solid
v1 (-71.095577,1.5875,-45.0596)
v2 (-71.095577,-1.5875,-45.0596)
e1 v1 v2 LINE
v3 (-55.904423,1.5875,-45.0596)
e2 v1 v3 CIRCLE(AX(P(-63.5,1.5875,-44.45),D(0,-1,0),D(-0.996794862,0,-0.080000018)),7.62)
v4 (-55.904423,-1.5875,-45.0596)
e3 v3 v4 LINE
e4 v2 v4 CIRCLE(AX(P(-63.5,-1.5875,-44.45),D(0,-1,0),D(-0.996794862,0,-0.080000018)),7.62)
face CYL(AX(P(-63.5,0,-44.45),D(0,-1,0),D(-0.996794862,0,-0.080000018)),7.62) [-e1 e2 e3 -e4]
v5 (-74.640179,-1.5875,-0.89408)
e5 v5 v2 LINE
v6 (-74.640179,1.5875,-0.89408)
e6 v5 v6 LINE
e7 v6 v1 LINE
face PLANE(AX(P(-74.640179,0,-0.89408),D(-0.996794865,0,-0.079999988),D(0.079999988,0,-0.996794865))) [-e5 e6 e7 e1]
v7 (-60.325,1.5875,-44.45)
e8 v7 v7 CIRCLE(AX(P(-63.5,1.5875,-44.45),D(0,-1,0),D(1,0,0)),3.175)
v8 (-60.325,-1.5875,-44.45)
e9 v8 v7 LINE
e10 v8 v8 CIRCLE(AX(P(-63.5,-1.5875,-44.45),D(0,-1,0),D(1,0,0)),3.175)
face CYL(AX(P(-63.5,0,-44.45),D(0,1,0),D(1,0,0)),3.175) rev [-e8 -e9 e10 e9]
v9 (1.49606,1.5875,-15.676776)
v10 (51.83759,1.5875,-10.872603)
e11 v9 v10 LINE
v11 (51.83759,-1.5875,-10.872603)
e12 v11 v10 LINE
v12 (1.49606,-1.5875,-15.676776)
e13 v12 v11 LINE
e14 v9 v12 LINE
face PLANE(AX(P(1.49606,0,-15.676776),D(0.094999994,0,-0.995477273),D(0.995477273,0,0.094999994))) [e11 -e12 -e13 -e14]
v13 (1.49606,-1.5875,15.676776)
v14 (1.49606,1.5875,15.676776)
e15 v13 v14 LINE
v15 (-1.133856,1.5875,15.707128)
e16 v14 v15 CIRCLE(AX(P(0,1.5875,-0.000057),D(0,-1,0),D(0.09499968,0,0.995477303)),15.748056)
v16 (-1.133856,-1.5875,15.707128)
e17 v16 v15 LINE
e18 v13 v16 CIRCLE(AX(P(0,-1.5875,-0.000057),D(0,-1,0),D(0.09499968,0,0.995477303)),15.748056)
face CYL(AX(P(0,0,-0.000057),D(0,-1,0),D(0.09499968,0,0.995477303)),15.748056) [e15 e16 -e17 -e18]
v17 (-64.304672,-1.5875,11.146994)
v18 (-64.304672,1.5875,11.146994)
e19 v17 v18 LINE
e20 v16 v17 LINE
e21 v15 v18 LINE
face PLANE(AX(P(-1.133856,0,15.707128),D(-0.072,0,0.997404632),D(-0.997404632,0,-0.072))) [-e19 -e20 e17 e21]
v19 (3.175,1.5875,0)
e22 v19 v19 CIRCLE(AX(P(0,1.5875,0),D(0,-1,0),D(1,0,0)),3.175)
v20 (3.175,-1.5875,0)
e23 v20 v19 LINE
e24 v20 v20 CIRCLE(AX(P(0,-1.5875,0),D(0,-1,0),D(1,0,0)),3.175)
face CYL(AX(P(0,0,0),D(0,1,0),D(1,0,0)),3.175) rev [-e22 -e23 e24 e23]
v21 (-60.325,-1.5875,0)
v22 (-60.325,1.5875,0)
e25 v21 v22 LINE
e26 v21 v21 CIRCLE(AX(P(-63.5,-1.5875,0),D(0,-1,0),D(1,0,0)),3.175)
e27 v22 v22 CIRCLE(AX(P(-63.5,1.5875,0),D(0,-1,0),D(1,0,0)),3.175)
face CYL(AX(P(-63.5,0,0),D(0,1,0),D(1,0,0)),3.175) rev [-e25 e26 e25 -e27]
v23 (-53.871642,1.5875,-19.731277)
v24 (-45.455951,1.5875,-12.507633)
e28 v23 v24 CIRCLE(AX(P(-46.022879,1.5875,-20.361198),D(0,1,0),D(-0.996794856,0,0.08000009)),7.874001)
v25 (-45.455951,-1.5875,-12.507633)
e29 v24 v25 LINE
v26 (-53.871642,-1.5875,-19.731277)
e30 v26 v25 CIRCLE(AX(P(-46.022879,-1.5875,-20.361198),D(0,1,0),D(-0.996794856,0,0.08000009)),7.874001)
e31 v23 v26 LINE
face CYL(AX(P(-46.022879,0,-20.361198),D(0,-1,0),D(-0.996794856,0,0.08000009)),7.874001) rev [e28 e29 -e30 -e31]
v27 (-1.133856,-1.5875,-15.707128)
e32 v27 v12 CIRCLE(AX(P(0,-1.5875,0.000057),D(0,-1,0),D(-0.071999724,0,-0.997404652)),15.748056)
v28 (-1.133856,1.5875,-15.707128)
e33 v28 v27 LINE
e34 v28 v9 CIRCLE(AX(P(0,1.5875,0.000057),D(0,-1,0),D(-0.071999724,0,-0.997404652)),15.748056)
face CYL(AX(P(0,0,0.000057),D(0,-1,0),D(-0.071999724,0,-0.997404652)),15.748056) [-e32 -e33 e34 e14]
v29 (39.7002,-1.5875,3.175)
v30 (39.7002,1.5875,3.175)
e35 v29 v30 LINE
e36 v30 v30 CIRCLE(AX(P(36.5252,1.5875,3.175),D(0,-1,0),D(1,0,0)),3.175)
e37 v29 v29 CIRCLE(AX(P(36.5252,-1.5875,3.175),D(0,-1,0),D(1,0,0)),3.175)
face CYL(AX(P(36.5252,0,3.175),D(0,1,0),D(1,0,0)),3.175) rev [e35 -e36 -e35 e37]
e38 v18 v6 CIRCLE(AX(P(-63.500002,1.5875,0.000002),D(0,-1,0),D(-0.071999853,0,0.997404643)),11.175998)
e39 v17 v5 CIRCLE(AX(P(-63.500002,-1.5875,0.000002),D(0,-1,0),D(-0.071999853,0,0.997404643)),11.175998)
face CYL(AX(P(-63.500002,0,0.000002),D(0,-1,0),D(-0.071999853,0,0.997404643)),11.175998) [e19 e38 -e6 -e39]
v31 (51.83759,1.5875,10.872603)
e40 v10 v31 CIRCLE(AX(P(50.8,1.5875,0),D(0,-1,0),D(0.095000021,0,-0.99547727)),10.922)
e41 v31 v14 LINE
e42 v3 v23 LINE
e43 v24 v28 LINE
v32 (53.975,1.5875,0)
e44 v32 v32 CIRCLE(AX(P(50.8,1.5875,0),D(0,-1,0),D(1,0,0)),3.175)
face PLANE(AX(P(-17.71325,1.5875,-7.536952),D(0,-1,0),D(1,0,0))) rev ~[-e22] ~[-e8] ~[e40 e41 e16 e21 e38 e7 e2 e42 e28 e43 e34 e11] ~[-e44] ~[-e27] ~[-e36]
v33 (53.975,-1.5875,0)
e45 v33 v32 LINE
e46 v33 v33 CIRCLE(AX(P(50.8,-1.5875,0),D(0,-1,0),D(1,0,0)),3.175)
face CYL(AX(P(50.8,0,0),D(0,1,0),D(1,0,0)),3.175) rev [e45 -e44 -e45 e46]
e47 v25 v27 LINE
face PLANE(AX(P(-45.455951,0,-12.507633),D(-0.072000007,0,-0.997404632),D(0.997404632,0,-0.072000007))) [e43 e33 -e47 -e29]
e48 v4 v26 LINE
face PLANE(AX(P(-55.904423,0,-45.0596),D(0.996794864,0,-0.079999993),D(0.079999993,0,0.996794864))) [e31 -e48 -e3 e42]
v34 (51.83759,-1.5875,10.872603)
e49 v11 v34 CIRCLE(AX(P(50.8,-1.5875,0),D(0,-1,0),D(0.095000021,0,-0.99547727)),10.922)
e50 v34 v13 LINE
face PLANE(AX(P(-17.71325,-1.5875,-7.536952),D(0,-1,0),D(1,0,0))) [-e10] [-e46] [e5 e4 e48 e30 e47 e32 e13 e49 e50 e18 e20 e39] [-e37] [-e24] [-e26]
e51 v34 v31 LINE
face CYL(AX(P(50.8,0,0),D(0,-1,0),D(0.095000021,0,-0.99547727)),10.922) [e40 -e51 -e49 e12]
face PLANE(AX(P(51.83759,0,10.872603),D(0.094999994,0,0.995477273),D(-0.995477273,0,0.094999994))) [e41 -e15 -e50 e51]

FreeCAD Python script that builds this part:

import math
import FreeCAD as App
import Part
import Sketcher
Q = App.Units.Quantity

doc = App.newDocument("Part")
body = doc.addObject("PartDesign::Body", "Body")

# Sketch on XZ plane
sketch1 = body.newObject("Sketcher::SketchObject", "Sketch")
sketch1.AttachmentSupport = (doc.getObject("XZ_Plane"), [""])
sketch1.MapMode = "FlatFace"
sketch1.addGeometry([
    Part.LineSegment(App.Vector(-74.640179, -0.89408, 0), App.Vector(-71.095577, -45.0596, 0)),  # 0
    Part.ArcOfCircle(Part.Circle(App.Vector(-63.5, -44.45, 0), App.Vector(0, 0, 1), 7.62), math.radians(-175.411433), math.radians(-4.588567)),  # 1
    Part.LineSegment(App.Vector(-55.904423, -45.0596, 0), App.Vector(-53.871642, -19.731277, 0)),  # 2
    Part.ArcOfCircle(Part.Circle(App.Vector(-46.022879, -20.361198, 0), App.Vector(0, 0, 1), 7.874001), math.radians(85.871134), math.radians(175.411429)),  # 3
    Part.LineSegment(App.Vector(-45.455951, -12.507633, 0), App.Vector(-1.133856, -15.707128, 0)),  # 4
    Part.ArcOfCircle(Part.Circle(App.Vector(0, 0.000057, 0), App.Vector(0, 0, 1), 15.748056), math.radians(-94.128853), math.radians(-84.548699)),  # 5
    Part.LineSegment(App.Vector(1.49606, -15.676776, 0), App.Vector(51.83759, -10.872603, 0)),  # 6
    Part.ArcOfCircle(Part.Circle(App.Vector(50.8, 0, 0), App.Vector(0, 0, 1), 10.922), math.radians(-84.548679), math.radians(84.548679)),  # 7
    Part.LineSegment(App.Vector(51.83759, 10.872603, 0), App.Vector(1.49606, 15.676776, 0)),  # 8
    Part.ArcOfCircle(Part.Circle(App.Vector(0, -0.000057, 0), App.Vector(0, 0, 1), 15.748056), math.radians(84.548699), math.radians(94.128853)),  # 9
    Part.LineSegment(App.Vector(-1.133856, 15.707128, 0), App.Vector(-64.304672, 11.146994, 0)),  # 10
    Part.ArcOfCircle(Part.Circle(App.Vector(-63.500002, 0.000002, 0), App.Vector(0, 0, 1), 11.175998), math.radians(94.12886), math.radians(184.588576)),  # 11
    Part.Circle(App.Vector(-63.5, -44.45, 0), App.Vector(0, 0, 1), 3.175),  # 12
    Part.Circle(App.Vector(-63.5, 0, 0), App.Vector(0, 0, 1), 3.175),  # 13
    Part.Circle(App.Vector(0, 0, 0), App.Vector(0, 0, 1), 3.175),  # 14
    Part.Circle(App.Vector(36.5252, 3.175, 0), App.Vector(0, 0, 1), 3.175),  # 15
    Part.Circle(App.Vector(50.8, 0, 0), App.Vector(0, 0, 1), 3.175),  # 16
], False)
sketch1.addConstraint([
    Sketcher.Constraint("Tangent", 0, 2, 1, 1),
    Sketcher.Constraint("Tangent", 1, 2, 2, 1),
    Sketcher.Constraint("Tangent", 2, 2, 3, 2),
    Sketcher.Constraint("Tangent", 3, 1, 4, 1),
    Sketcher.Constraint("Tangent", 4, 2, 5, 1),
    Sketcher.Constraint("Tangent", 5, 2, 6, 1),
    Sketcher.Constraint("Tangent", 6, 2, 7, 1),
    Sketcher.Constraint("Tangent", 7, 2, 8, 1),
    Sketcher.Constraint("Tangent", 8, 2, 9, 1),
    Sketcher.Constraint("Tangent", 9, 2, 10, 1),
    Sketcher.Constraint("Tangent", 10, 2, 11, 1),
    Sketcher.Constraint("Tangent", 11, 2, 0, 1),
    Sketcher.Constraint("Coincident", 14, 3, -1, 1),
    Sketcher.Constraint("Coincident", 12, 3, 1, 3),
    Sketcher.Constraint("Coincident", 13, 3, 11, 3),
    Sketcher.Constraint("Coincident", 16, 3, 7, 3),
    Sketcher.Constraint("Equal", 5, 9),
    Sketcher.Constraint("Equal", 12, 13),
    Sketcher.Constraint("Equal", 13, 14),
    Sketcher.Constraint("Equal", 14, 15),
    Sketcher.Constraint("Equal", 15, 16),
    Sketcher.Constraint("Symmetric", 5, 3, 9, 3, -1, 1),
    Sketcher.Constraint("Symmetric", 6, 2, 7, 2, -1),
    Sketcher.Constraint("PointOnObject", 11, 3, -1),
    Sketcher.Constraint("Horizontal", 0, 2, 1, 2),
    Sketcher.Constraint("Vertical", 1, 3, 11, 3),
    Sketcher.Constraint("Vertical", 4, 2, 9, 2),
    Sketcher.Constraint("Radius", 1, Q("0.3 in")),
    Sketcher.Constraint("Diameter", 12, Q("0.25 in")),
    Sketcher.Constraint("Radius", 3, Q("0.31 in")),
    Sketcher.Constraint("Radius", 7, Q("0.43 in")),
    Sketcher.Constraint("Radius", 11, Q("0.4399999 in")),
    Sketcher.Constraint("DistanceX", -1, 1, 7, 3, Q("2 in")),
    Sketcher.Constraint("DistanceX", 1, 3, -1, 1, Q("2.5 in")),
    Sketcher.Constraint("DistanceY", 1, 3, -1, 1, Q("1.75 in")),
    Sketcher.Constraint("DistanceX", -1, 1, 15, 3, Q("1.438 in")),
    Sketcher.Constraint("DistanceY", -1, 1, 15, 3, Q("0.125 in")),
    Sketcher.Constraint("DistanceX", -1, 1, 5, 2, Q("0.0589 in")),
    Sketcher.Constraint("Radius", 5, 15.748056),
])
pad1 = body.newObject("PartDesign::Pad", "Pad")
pad1.Profile = sketch1
pad1.Length = Q("0.125 in")
pad1.Midplane = True

doc.recompute()
